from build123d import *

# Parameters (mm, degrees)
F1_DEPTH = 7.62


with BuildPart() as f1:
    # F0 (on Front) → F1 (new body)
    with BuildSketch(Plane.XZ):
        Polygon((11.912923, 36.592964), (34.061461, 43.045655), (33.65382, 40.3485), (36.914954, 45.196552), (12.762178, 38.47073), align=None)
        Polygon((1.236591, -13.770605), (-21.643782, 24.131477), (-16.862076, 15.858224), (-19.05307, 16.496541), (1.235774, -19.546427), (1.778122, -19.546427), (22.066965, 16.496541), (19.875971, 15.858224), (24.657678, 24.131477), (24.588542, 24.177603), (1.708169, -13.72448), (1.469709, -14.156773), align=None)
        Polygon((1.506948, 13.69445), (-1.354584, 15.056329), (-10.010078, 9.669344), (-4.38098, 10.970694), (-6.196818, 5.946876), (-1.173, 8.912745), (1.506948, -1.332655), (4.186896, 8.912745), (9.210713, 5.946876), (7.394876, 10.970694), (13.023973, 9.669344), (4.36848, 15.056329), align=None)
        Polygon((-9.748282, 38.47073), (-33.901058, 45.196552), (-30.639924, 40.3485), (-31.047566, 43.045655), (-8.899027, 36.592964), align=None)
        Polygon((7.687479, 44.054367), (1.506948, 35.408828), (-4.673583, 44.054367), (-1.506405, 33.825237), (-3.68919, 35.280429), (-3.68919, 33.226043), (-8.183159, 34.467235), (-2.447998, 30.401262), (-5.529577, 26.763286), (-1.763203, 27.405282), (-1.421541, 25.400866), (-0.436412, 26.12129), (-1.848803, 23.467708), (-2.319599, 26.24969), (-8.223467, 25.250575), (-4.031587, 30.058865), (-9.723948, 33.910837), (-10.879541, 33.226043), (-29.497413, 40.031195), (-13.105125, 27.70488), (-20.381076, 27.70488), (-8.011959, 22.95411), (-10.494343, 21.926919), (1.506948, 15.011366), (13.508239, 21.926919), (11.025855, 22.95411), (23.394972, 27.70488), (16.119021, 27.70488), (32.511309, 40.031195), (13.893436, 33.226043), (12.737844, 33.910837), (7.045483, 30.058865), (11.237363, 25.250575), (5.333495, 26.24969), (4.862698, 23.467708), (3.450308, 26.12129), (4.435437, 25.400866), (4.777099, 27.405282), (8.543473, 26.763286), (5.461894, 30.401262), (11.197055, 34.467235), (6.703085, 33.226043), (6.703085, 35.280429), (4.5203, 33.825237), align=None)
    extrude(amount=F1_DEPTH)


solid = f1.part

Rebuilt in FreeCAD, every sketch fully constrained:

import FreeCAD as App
import Part
import Sketcher
from FreeCAD import Vector
Q = App.Units.Quantity


def add_polygon(sketch, points):
    """Adds a closed chain of lines whose ends are joined by coincident constraints."""
    first, n = sketch.GeometryCount, len(points)
    for a, b in zip(points, points[1:] + points[:1]):
        sketch.addGeometry(Part.LineSegment(App.Vector(*a, 0), App.Vector(*b, 0)), False)
    for i in range(n):
        sketch.addConstraint(Sketcher.Constraint("Coincident", first + i, 2, first + (i + 1) % n, 1))

doc = App.newDocument("Part")
params = doc.addObject("Spreadsheet::Sheet", "Params")
for row, (alias, value) in enumerate([
    ("pad1_length", "0.3 in"),
], start=1):
    params.set(f"A{row}", alias)
    params.set(f"B{row}", "=" + value)
    params.setAlias(f"B{row}", alias)

body = doc.addObject("PartDesign::Body", "Body")
body.AllowCompound = True

sketch1 = body.newObject("Sketcher::SketchObject", "Sketch")
sketch1.AttachmentSupport = (doc.getObject("XZ_Plane"), [""])
sketch1.MapMode = "FlatFace"
add_polygon(sketch1, [(11.91, 36.59), (34.06, 43.05), (33.65, 40.35), (36.91, 45.2), (12.76, 38.47)])
add_polygon(sketch1, [(1.24, -13.77), (-21.64, 24.13), (-16.86, 15.86), (-19.05, 16.5), (1.24, -19.55), (1.78, -19.55), (22.07, 16.5), (19.88, 15.86), (24.66, 24.13), (24.59, 24.18), (1.71, -13.72), (1.47, -14.16)])
add_polygon(sketch1, [(1.51, 13.69), (-1.35, 15.06), (-10.01, 9.67), (-4.38, 10.97), (-6.2, 5.95), (-1.17, 8.91), (1.51, -1.33), (4.19, 8.91), (9.21, 5.95), (7.39, 10.97), (13.02, 9.67), (4.37, 15.06)])
add_polygon(sketch1, [(-9.75, 38.47), (-33.9, 45.2), (-30.64, 40.35), (-31.05, 43.05), (-8.9, 36.59)])
add_polygon(sketch1, [(7.69, 44.05), (1.51, 35.41), (-4.67, 44.05), (-1.51, 33.83), (-3.69, 35.28), (-3.69, 33.23), (-8.18, 34.47), (-2.45, 30.4), (-5.53, 26.76), (-1.76, 27.41), (-1.42, 25.4), (-0.44, 26.12), (-1.85, 23.47), (-2.32, 26.25), (-8.22, 25.25), (-4.03, 30.06), (-9.72, 33.91), (-10.88, 33.23), (-29.5, 40.03), (-13.11, 27.7), (-20.38, 27.7), (-8.01, 22.95), (-10.49, 21.93), (1.51, 15.01), (13.51, 21.93), (11.03, 22.95), (23.39, 27.7), (16.12, 27.7), (32.51, 40.03), (13.89, 33.23), (12.74, 33.91), (7.05, 30.06), (11.24, 25.25), (5.33, 26.25), (4.86, 23.47), (3.45, 26.12), (4.44, 25.4), (4.78, 27.41), (8.54, 26.76), (5.46, 30.4), (11.2, 34.47), (6.7, 33.23), (6.7, 35.28), (4.52, 33.83)])
sketch1.addConstraint([
    Sketcher.Constraint("Horizontal", 9),
    Sketcher.Constraint("Vertical", 38),
    Sketcher.Constraint("Horizontal", 53),
    Sketcher.Constraint("Horizontal", 60),
    Sketcher.Constraint("Vertical", 75),
    Sketcher.Constraint("Parallel", 0, 11),
    Sketcher.Constraint("Parallel", 5, 16),
    Sketcher.Constraint("Parallel", 7, 32),
    Sketcher.Constraint("Perpendicular", 42, 43),
    Sketcher.Constraint("Perpendicular", 46, 47),
    Sketcher.Constraint("Perpendicular", 66, 67),
    Sketcher.Constraint("Perpendicular", 70, 71),
    Sketcher.Constraint("Horizontal", 7, 2, 10, 2),
    Sketcher.Constraint("Horizontal", 6, 2, 11, 2),
    Sketcher.Constraint("Horizontal", 5, 2, 12, 2),
    Sketcher.Constraint("Horizontal", 21, 2, 23, 2),
    Sketcher.Constraint("Horizontal", 20, 2, 24, 2),
    Sketcher.Constraint("Horizontal", 19, 2, 25, 2),
    Sketcher.Constraint("Horizontal", 18, 2, 26, 2),
    Sketcher.Constraint("Horizontal", 17, 2, 27, 2),
    Sketcher.Constraint("Horizontal", 2, 2, 29, 2),
    Sketcher.Constraint("Horizontal", 1, 2, 30, 2),
    Sketcher.Constraint("Horizontal", 0, 2, 31, 2),
    Sketcher.Constraint("Horizontal", 4, 2, 32, 2),
    Sketcher.Constraint("Horizontal", 3, 2, 33, 2),
    Sketcher.Constraint("Horizontal", 38, 2, 50, 2),
    Sketcher.Constraint("Horizontal", 55, 2, 57, 2),
    Sketcher.Constraint("Horizontal", 54, 2, 58, 2),
    Sketcher.Constraint("Horizontal", 53, 2, 59, 2),
    Sketcher.Constraint("Horizontal", 51, 2, 61, 2),
    Sketcher.Constraint("Horizontal", 50, 2, 62, 2),
    Sketcher.Constraint("Horizontal", 49, 2, 63, 2),
    Sketcher.Constraint("Horizontal", 48, 2, 64, 2),
    Sketcher.Constraint("Horizontal", 47, 2, 65, 2),
    Sketcher.Constraint("Horizontal", 46, 2, 66, 2),
    Sketcher.Constraint("Horizontal", 45, 2, 67, 2),
    Sketcher.Constraint("Horizontal", 44, 2, 68, 2),
    Sketcher.Constraint("Horizontal", 43, 2, 69, 2),
    Sketcher.Constraint("Horizontal", 42, 2, 70, 2),
    Sketcher.Constraint("Horizontal", 41, 2, 71, 2),
    Sketcher.Constraint("Horizontal", 40, 2, 72, 2),
    Sketcher.Constraint("Horizontal", 39, 2, 73, 2),
    Sketcher.Constraint("Horizontal", 62, 2, 74, 2),
    Sketcher.Constraint("Horizontal", 37, 2, 75, 2),
    Sketcher.Constraint("Horizontal", 36, 2, 76, 2),
    Sketcher.Constraint("Horizontal", 35, 2, 77, 2),
    Sketcher.Constraint("Vertical", 22, 2, 28, 2),
    Sketcher.Constraint("Vertical", 28, 2, 34, 2),
    Sketcher.Constraint("Vertical", 34, 2, 56, 2),
    Sketcher.Constraint("Equal", 53, 60),
    Sketcher.Constraint("Equal", 8, 10),
    Sketcher.Constraint("Equal", 7, 11),
    Sketcher.Constraint("Equal", 6, 12),
    Sketcher.Constraint("Equal", 5, 14),
    Sketcher.Constraint("Equal", 22, 23),
    Sketcher.Constraint("Equal", 21, 24),
    Sketcher.Constraint("Equal", 20, 25),
    Sketcher.Constraint("Equal", 19, 26),
    Sketcher.Constraint("Equal", 18, 27),
    Sketcher.Constraint("Equal", 3, 29),
    Sketcher.Constraint("Equal", 2, 30),
    Sketcher.Constraint("Equal", 1, 31),
    Sketcher.Constraint("Equal", 34, 35),
    Sketcher.Constraint("Equal", 56, 57),
    Sketcher.Constraint("Equal", 55, 58),
    Sketcher.Constraint("Equal", 54, 59),
    Sketcher.Constraint("Equal", 52, 61),
    Sketcher.Constraint("Equal", 51, 62),
    Sketcher.Constraint("Equal", 50, 63),
    Sketcher.Constraint("Equal", 49, 64),
    Sketcher.Constraint("Equal", 48, 65),
    Sketcher.Constraint("Equal", 47, 66),
    Sketcher.Constraint("Equal", 45, 68),
    Sketcher.Constraint("Equal", 44, 69),
    Sketcher.Constraint("Equal", 43, 70),
    Sketcher.Constraint("Equal", 41, 72),
    Sketcher.Constraint("Equal", 40, 73),
    Sketcher.Constraint("Equal", 39, 74),
    Sketcher.Constraint("Equal", 37, 76),
    Sketcher.Constraint("DistanceY", -1, 1, 40, 2, Q("1.1969001 in")),
    Sketcher.Constraint("DistanceX", 41, 2, -1, 1, Q("0.2176999 in")),
    Sketcher.Constraint("Distance", 6, 9.555701),
    Sketcher.Constraint("Distance", 15, 0.493701),
    Sketcher.Constraint("DistanceX", 9, 1, 9, 2, 0.542348),
    Sketcher.Constraint("DistanceX", 53, 2, 53, 1, 7.275951),
    Sketcher.Constraint("DistanceY", -1, 1, 1, 2, 40.3485),
    Sketcher.Constraint("DistanceX", 21, 2, -1, 1, 1.173),
    Sketcher.Constraint("DistanceX", 40, 2, -1, 1, 2.447998),
    Sketcher.Constraint("DistanceX", 46, 2, -1, 1, 2.319599),
    Sketcher.Constraint("DistanceX", -1, 1, 70, 2, 4.777099),
    Sketcher.Constraint("DistanceX", -1, 1, 76, 2, 4.5203),
    Sketcher.Constraint("Distance", 0, 23.069351),
    Sketcher.Constraint("Distance", 13, 0.083111),
    Sketcher.Constraint("Distance", 17, 3.169082),
    Sketcher.Constraint("Distance", 18, 10.194959),
    Sketcher.Constraint("Distance", 20, 5.341911),
    Sketcher.Constraint("Distance", 45, 3.006052),
    Sketcher.Constraint("Distance", 47, 5.987812),
    Sketcher.Constraint("Distance", 48, 6.37899),
    Sketcher.Constraint("Distance", 54, 13.250089),
    Sketcher.Constraint("DistanceY", 38, 2, 38, 1, 2.054386),
    Sketcher.Constraint("DistanceX", -1, 1, 0, 2, 34.061461),
    Sketcher.Constraint("DistanceX", -1, 1, 1, 2, 33.65382),
    Sketcher.Constraint("DistanceY", -1, 1, 2, 2, 45.196552),
    Sketcher.Constraint("DistanceY", -1, 1, 3, 2, 38.47073),
    Sketcher.Constraint("DistanceX", 7, 2, -1, 1, 19.05307),
    Sketcher.Constraint("DistanceY", -1, 1, 7, 2, 16.496541),
    Sketcher.Constraint("DistanceX", -1, 1, 11, 2, 19.875971),
    Sketcher.Constraint("DistanceX", -1, 1, 12, 2, 24.657678),
    Sketcher.Constraint("DistanceX", -1, 1, 14, 2, 1.708169),
    Sketcher.Constraint("DistanceY", 14, 2, -1, 1, 13.72448),
    Sketcher.Constraint("DistanceX", -1, 1, 15, 2, 1.469709),
    Sketcher.Constraint("DistanceX", -1, 1, 16, 2, 1.236591),
    Sketcher.Constraint("DistanceY", -1, 1, 17, 2, 15.056329),
    Sketcher.Constraint("DistanceX", 19, 2, -1, 1, 4.38098),
    Sketcher.Constraint("DistanceX", 20, 2, -1, 1, 6.196818),
    Sketcher.Constraint("DistanceX", -1, 1, 27, 2, 4.36848),
    Sketcher.Constraint("DistanceY", -1, 1, 28, 2, 13.69445),
    Sketcher.Constraint("DistanceX", 37, 2, -1, 1, 3.68919),
    Sketcher.Constraint("DistanceY", -1, 1, 37, 2, 35.280429),
    Sketcher.Constraint("DistanceX", 39, 2, -1, 1, 8.183159),
    Sketcher.Constraint("DistanceY", -1, 1, 42, 2, 27.405282),
    Sketcher.Constraint("DistanceX", 43, 2, -1, 1, 1.421541),
    Sketcher.Constraint("DistanceY", -1, 1, 44, 2, 26.12129),
    Sketcher.Constraint("DistanceY", -1, 1, 46, 2, 26.24969),
    Sketcher.Constraint("DistanceX", 50, 2, -1, 1, 10.879541),
    Sketcher.Constraint("DistanceY", -1, 1, 52, 2, 27.70488),
    Sketcher.Constraint("DistanceX", 54, 2, -1, 1, 8.011959),
    Sketcher.Constraint("DistanceY", -1, 1, 54, 2, 22.95411),
    Sketcher.Constraint("DistanceY", -1, 1, 55, 2, 21.926919),
    Sketcher.Constraint("DistanceX", -1, 1, 57, 2, 13.508239),
    Sketcher.Constraint("DistanceX", -1, 1, 61, 2, 32.511309),
    Sketcher.Constraint("DistanceX", -1, 1, 68, 2, 3.450308),
    Sketcher.Constraint("DistanceX", -1, 1, 77, 2, 7.687479),
    Sketcher.Constraint("Distance", 1, 2.727786),
    Sketcher.Constraint("Distance", 2, 5.842825),
    Sketcher.Constraint("Distance", 3, 25.071762),
    Sketcher.Constraint("Distance", 4, 2.060883),
    Sketcher.Constraint("Distance", 5, 44.272783),
    Sketcher.Constraint("Distance", 8, 41.361005),
    Sketcher.Constraint("Distance", 19, 5.777565),
    Sketcher.Constraint("Distance", 21, 5.833963),
    Sketcher.Constraint("Distance", 22, 10.590106),
    Sketcher.Constraint("Distance", 34, 10.627526),
    Sketcher.Constraint("Distance", 36, 10.708227),
    Sketcher.Constraint("Distance", 37, 2.623382),
    Sketcher.Constraint("Distance", 39, 4.662222),
    Sketcher.Constraint("Distance", 41, 4.767704),
    Sketcher.Constraint("Distance", 46, 2.821537),
    Sketcher.Constraint("Distance", 49, 6.873184),
    Sketcher.Constraint("Distance", 50, 1.343256),
    Sketcher.Constraint("Distance", 51, 19.822594),
    Sketcher.Constraint("Distance", 56, 13.851204),
    Sketcher.Constraint("DistanceX", 18, 2, -1, 1, 10.010078),
    Sketcher.Constraint("DistanceX", 29, 2, -1, 1, 33.901058),
    Sketcher.Constraint("DistanceX", 48, 2, -1, 1, 4.031587),
])
pad1 = body.newObject("PartDesign::Pad", "Pad")
pad1.Profile = sketch1
pad1.setExpression("Length", "Params.pad1_length")

doc.recompute()
